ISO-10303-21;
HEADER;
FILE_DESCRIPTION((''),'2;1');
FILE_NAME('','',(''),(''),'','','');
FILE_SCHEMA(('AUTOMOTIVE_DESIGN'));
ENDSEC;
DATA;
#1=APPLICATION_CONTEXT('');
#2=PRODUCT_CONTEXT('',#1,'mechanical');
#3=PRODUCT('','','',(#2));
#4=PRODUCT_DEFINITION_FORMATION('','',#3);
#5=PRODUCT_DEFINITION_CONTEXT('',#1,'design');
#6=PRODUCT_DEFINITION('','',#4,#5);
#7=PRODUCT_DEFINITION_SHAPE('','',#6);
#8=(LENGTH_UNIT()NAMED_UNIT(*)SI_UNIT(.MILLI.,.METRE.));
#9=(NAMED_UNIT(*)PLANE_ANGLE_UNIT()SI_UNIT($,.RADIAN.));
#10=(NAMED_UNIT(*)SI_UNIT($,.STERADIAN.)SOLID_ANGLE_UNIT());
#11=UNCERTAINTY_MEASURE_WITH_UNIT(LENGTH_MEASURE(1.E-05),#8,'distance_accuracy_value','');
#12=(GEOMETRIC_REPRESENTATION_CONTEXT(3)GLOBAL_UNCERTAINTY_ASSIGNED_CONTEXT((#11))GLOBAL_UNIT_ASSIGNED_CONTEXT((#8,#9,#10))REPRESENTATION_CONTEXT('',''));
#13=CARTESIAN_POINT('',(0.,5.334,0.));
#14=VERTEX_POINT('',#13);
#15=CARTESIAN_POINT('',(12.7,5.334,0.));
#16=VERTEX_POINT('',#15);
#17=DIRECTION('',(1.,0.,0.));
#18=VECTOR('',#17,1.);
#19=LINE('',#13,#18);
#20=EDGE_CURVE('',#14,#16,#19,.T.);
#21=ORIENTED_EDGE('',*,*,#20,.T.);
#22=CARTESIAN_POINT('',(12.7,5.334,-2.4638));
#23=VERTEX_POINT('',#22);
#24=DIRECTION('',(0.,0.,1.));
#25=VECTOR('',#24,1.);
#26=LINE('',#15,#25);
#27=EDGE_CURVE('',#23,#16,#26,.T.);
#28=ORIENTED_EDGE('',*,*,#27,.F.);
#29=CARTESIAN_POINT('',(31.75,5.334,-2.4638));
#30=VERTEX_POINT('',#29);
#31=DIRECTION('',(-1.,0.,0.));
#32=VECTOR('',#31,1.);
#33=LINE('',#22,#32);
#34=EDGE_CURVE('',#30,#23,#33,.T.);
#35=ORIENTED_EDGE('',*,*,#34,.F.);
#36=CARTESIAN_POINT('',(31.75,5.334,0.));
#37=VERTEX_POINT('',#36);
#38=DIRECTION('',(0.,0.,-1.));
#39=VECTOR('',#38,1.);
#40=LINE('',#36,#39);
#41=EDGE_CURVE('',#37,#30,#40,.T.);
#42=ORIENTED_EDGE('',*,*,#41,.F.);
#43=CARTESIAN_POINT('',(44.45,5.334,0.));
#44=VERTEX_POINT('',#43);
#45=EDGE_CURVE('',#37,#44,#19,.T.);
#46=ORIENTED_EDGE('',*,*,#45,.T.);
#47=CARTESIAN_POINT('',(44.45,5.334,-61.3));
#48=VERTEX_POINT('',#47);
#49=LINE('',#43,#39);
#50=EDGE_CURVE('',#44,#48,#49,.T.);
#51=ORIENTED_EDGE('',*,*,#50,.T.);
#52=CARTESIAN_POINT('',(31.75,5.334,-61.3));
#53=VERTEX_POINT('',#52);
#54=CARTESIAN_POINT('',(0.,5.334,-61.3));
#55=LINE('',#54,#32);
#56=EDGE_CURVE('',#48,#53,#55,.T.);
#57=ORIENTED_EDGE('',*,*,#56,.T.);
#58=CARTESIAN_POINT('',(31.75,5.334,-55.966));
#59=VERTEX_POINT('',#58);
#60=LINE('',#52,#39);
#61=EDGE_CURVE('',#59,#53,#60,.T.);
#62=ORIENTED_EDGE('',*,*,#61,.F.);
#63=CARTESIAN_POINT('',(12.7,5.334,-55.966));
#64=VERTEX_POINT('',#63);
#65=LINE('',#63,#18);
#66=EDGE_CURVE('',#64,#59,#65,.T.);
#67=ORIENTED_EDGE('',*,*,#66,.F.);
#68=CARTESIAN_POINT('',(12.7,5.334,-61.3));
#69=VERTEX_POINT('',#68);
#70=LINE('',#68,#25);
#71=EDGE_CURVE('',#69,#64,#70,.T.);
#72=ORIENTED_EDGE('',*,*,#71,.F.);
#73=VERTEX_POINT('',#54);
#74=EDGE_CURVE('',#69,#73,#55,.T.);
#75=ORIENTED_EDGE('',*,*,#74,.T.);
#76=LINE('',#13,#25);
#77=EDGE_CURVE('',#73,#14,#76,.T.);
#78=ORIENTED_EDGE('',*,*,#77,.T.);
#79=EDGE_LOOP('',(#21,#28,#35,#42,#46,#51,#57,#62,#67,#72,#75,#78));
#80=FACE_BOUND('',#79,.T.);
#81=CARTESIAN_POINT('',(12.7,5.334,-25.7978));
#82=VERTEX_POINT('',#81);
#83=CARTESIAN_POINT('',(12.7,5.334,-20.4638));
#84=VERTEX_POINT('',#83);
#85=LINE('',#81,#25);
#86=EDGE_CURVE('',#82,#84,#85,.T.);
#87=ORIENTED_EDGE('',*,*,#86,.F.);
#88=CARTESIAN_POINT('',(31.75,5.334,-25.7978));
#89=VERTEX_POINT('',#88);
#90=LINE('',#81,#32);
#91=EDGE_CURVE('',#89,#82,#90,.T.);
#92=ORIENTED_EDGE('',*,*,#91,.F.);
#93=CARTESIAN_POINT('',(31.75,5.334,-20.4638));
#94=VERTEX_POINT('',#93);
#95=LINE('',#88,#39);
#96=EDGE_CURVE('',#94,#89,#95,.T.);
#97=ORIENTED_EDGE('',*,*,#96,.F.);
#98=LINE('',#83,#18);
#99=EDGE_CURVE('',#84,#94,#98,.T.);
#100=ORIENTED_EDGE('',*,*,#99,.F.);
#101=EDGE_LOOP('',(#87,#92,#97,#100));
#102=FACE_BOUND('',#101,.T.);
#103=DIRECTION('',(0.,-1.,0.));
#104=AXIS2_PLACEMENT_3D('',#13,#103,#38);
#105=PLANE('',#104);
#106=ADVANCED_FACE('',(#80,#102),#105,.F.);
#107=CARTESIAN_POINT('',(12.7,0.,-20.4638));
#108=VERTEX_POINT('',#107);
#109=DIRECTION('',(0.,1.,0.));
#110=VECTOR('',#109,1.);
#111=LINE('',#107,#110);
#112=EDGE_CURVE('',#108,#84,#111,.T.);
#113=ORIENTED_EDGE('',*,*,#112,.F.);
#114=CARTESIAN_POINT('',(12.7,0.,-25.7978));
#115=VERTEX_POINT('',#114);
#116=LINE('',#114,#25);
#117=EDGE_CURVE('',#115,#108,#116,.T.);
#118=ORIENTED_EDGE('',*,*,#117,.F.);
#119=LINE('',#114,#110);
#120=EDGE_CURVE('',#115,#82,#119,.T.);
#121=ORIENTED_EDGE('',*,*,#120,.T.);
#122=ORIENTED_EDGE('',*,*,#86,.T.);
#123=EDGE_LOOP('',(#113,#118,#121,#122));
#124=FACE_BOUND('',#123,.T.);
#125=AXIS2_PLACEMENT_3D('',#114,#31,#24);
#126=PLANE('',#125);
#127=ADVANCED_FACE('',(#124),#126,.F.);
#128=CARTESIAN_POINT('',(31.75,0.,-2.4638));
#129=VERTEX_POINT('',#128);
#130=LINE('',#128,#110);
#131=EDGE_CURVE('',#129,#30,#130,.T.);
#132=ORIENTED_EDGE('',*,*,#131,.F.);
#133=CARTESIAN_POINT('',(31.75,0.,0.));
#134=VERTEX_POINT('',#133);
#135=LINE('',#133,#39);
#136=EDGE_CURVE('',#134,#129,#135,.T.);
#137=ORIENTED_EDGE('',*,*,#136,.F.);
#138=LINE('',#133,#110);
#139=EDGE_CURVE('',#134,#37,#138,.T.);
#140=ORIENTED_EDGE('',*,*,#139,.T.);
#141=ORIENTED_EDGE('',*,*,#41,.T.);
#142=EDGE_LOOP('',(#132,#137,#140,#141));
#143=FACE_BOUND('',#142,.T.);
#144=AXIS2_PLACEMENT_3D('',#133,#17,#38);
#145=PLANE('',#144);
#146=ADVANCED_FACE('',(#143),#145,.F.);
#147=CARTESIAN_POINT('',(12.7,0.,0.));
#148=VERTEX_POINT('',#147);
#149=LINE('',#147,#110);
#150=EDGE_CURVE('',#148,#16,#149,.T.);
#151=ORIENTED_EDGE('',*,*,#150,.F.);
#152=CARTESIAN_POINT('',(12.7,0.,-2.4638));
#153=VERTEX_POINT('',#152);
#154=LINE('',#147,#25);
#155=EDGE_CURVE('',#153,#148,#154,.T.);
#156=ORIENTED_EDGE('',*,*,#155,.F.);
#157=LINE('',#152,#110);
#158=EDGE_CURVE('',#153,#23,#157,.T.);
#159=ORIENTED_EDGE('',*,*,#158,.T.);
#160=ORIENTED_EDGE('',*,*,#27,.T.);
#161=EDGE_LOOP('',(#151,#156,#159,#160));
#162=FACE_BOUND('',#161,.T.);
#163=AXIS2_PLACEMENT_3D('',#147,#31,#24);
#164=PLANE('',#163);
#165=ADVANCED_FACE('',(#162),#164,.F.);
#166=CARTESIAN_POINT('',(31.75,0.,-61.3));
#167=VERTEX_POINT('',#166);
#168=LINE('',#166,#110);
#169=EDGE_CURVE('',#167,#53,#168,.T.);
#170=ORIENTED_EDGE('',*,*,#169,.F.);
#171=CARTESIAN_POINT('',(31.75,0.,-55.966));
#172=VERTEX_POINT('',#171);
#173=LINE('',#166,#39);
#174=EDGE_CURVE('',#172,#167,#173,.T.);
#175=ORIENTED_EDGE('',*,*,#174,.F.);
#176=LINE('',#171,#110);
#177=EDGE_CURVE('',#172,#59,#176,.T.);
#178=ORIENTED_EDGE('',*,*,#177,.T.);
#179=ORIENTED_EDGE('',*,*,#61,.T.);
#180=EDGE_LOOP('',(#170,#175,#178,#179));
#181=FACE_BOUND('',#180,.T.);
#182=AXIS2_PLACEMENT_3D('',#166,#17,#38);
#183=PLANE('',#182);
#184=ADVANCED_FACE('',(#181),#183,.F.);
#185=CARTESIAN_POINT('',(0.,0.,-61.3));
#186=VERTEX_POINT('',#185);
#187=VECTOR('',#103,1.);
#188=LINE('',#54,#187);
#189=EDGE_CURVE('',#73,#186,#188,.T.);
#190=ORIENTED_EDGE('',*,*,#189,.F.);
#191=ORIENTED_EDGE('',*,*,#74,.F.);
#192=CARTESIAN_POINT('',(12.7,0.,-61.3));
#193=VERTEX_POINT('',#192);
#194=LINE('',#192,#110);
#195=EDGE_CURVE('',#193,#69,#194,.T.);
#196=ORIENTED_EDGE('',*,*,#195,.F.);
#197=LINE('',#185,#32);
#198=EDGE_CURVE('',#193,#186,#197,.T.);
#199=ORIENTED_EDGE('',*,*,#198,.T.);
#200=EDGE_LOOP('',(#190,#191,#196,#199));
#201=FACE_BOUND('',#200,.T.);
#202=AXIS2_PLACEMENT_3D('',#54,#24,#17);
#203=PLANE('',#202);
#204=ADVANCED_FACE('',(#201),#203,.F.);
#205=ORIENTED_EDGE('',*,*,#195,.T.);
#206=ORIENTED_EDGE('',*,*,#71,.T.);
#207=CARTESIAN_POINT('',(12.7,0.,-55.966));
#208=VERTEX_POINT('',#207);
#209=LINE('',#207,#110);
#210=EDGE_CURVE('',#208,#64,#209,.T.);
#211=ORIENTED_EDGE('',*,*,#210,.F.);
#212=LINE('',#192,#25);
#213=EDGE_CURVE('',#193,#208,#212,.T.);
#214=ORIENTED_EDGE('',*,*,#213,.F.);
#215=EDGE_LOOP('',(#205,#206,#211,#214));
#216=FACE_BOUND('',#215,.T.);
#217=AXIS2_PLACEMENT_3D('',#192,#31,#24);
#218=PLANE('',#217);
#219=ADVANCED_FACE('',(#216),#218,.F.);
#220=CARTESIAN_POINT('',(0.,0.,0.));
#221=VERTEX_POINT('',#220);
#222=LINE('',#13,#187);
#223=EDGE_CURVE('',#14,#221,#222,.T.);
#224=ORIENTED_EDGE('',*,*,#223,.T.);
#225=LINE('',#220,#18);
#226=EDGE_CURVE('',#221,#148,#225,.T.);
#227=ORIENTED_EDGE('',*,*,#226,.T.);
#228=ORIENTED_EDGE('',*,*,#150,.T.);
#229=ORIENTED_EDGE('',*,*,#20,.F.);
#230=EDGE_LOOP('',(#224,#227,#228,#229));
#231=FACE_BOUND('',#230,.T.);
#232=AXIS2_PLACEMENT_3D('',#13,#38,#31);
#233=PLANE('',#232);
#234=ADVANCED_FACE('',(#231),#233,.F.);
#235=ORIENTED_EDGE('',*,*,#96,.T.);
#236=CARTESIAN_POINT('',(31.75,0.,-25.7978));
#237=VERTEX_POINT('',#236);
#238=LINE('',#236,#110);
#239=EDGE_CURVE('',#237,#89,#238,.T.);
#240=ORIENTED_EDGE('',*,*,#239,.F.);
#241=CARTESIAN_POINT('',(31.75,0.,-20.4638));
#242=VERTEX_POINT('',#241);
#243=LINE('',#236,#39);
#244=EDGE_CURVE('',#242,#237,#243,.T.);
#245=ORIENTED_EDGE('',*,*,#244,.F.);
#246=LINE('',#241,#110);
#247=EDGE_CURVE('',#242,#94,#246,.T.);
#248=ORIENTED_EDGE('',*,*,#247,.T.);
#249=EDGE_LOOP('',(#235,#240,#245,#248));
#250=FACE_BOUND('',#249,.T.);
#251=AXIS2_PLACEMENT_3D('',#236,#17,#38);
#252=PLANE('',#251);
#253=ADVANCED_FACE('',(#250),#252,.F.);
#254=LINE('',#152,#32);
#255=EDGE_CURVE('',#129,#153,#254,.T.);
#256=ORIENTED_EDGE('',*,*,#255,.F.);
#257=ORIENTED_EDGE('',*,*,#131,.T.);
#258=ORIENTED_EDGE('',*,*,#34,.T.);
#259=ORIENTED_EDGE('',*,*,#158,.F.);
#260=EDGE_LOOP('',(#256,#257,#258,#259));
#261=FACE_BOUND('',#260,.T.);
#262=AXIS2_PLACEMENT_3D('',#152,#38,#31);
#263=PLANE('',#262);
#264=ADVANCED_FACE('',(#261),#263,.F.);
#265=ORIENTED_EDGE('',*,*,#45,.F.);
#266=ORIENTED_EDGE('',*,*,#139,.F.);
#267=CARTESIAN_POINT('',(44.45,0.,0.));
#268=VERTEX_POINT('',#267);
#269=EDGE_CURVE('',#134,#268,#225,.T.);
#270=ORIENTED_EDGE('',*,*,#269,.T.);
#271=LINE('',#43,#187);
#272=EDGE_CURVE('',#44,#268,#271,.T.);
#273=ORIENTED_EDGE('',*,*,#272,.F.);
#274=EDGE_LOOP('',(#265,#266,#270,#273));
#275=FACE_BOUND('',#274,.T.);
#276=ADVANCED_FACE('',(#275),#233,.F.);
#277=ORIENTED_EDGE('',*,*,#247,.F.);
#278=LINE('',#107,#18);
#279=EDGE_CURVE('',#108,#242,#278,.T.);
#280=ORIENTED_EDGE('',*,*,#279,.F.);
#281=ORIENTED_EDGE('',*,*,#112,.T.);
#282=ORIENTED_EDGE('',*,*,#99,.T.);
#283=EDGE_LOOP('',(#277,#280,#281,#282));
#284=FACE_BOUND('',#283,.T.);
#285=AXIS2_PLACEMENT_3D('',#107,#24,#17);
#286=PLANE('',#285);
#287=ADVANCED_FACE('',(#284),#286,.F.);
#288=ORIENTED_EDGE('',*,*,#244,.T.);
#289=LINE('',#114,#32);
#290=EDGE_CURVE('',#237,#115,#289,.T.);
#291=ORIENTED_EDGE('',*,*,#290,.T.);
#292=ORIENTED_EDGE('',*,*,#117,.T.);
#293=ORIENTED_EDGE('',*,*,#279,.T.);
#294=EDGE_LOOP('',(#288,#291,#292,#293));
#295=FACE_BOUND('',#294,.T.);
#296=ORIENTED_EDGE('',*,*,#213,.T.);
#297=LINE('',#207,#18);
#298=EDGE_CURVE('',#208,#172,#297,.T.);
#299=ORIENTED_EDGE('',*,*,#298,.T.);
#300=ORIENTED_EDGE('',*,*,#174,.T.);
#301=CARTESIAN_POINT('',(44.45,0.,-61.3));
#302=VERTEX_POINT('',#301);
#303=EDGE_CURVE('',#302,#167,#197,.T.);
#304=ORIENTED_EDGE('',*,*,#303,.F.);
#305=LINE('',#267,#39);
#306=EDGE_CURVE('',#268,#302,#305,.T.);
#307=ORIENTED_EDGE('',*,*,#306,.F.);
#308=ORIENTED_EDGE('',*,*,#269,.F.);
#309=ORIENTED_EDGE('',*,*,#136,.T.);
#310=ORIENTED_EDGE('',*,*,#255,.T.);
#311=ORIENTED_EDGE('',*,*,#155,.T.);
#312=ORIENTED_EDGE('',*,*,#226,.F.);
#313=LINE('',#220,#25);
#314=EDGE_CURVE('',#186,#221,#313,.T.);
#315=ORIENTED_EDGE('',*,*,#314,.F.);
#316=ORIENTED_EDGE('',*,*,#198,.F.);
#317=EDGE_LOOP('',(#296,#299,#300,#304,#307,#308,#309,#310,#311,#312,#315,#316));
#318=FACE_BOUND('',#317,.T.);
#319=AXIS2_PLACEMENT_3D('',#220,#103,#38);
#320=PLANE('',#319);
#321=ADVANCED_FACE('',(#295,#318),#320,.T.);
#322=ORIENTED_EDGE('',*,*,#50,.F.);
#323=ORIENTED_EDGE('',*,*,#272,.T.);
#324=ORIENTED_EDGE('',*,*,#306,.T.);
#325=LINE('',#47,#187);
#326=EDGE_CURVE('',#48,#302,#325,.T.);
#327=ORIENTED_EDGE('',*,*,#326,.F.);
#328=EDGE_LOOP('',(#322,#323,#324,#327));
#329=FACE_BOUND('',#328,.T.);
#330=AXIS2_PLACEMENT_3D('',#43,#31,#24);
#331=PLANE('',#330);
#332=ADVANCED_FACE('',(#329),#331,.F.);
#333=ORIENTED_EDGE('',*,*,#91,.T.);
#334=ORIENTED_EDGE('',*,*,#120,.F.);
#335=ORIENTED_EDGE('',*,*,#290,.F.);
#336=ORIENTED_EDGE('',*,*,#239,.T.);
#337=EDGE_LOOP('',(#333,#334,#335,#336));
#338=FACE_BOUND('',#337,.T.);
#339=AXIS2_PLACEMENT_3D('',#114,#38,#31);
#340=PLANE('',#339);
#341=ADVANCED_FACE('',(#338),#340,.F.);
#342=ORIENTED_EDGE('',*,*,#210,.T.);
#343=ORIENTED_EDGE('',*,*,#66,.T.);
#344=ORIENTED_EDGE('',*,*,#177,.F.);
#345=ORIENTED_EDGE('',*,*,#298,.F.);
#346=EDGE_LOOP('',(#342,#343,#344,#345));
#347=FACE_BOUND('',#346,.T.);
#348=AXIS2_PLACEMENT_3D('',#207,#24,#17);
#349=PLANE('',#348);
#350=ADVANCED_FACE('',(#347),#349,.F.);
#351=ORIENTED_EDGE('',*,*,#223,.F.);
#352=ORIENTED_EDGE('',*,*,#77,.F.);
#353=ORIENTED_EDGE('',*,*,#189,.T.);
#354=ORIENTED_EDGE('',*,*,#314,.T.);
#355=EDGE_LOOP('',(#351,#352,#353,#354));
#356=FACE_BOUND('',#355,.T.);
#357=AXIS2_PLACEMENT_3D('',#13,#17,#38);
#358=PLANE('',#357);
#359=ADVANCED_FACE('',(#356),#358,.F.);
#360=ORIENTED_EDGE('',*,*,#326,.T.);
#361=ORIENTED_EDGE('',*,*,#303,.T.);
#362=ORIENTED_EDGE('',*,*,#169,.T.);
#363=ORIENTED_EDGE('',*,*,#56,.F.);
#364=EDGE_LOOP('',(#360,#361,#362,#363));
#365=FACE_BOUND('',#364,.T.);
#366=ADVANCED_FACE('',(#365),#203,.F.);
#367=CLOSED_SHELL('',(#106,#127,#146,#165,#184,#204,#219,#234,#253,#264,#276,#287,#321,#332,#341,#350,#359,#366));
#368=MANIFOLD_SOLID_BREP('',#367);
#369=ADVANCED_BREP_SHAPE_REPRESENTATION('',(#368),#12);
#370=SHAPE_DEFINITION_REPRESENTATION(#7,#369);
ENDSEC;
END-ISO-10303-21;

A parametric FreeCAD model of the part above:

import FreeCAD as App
import Part
import Sketcher
Q = App.Units.Quantity

doc = App.newDocument("Part")
body = doc.addObject("PartDesign::Body", "Body")

# Sketch on XZ plane
sketch1 = body.newObject("Sketcher::SketchObject", "Sketch")
sketch1.AttachmentSupport = (doc.getObject("XZ_Plane"), [""])
sketch1.MapMode = "FlatFace"
sketch1.addGeometry(Part.LineSegment(App.Vector(0, -61, 0), App.Vector(0, 0, 0)), False)
sketch1.addGeometry(Part.LineSegment(App.Vector(0, 0, 0), App.Vector(44, 0, 0)), False)
sketch1.addGeometry(Part.LineSegment(App.Vector(44, 0, 0), App.Vector(44, -61, 0)), False)
sketch1.addGeometry(Part.LineSegment(App.Vector(44, -61, 0), App.Vector(0, -61, 0)), False)
sketch1.addConstraint(Sketcher.Constraint("Coincident", 0, 2, 1, 1))
sketch1.addConstraint(Sketcher.Constraint("Coincident", 1, 2, 2, 1))
sketch1.addConstraint(Sketcher.Constraint("Coincident", 2, 2, 3, 1))
sketch1.addConstraint(Sketcher.Constraint("Coincident", 3, 2, 0, 1))
sketch1.addConstraint(Sketcher.Constraint("Vertical", 0))
sketch1.addConstraint(Sketcher.Constraint("Horizontal", 1))
sketch1.addConstraint(Sketcher.Constraint("Vertical", 2))
sketch1.addConstraint(Sketcher.Constraint("Horizontal", 3))
sketch1.addConstraint(Sketcher.Constraint("Coincident", 0, 2, -1, 1))
sketch1.addConstraint(Sketcher.Constraint("DistanceX", 1, 1, 1, 2, Q("1.75 in")))
sketch1.addConstraint(Sketcher.Constraint("DistanceY", 0, 1, 0, 2, Q("61.3 mm")))
pad1 = body.newObject("PartDesign::Pad", "Pad")
pad1.Profile = sketch1
pad1.Length = Q("0.21 in")
pad1.Reversed = True

# Sketch on XZ plane
sketch2 = body.newObject("Sketcher::SketchObject", "Sketch001")
sketch2.AttachmentSupport = (doc.getObject("XZ_Plane"), [""])
sketch2.MapMode = "FlatFace"
sketch2.AttachmentOffset = App.Placement(App.Vector(0, 0, -0.21 * 25.4), App.Rotation())
sketch2.addGeometry(Part.LineSegment(App.Vector(12.7, -2.5, 0), App.Vector(12.7, 0, 0)), False)
sketch2.addGeometry(Part.LineSegment(App.Vector(12.7, 0, 0), App.Vector(31.8, 0, 0)), False)
sketch2.addGeometry(Part.LineSegment(App.Vector(31.8, 0, 0), App.Vector(31.8, -2.5, 0)), False)
sketch2.addGeometry(Part.LineSegment(App.Vector(31.8, -2.5, 0), App.Vector(12.7, -2.5, 0)), False)
sketch2.addGeometry(Part.LineSegment(App.Vector(12.7, -25.8, 0), App.Vector(12.7, -20.5, 0)), False)
sketch2.addGeometry(Part.LineSegment(App.Vector(12.7, -20.5, 0), App.Vector(31.8, -20.5, 0)), False)
sketch2.addGeometry(Part.LineSegment(App.Vector(31.8, -20.5, 0), App.Vector(31.8, -25.8, 0)), False)
sketch2.addGeometry(Part.LineSegment(App.Vector(31.8, -25.8, 0), App.Vector(12.7, -25.8, 0)), False)
sketch2.addGeometry(Part.LineSegment(App.Vector(12.7, -61.3, 0), App.Vector(12.7, -56, 0)), False)
sketch2.addGeometry(Part.LineSegment(App.Vector(12.7, -56, 0), App.Vector(31.8, -56, 0)), False)
sketch2.addGeometry(Part.LineSegment(App.Vector(31.8, -56, 0), App.Vector(31.8, -61.3, 0)), False)
sketch2.addGeometry(Part.LineSegment(App.Vector(31.8, -61.3, 0), App.Vector(12.7, -61.3, 0)), False)
sketch2.addConstraint(Sketcher.Constraint("Coincident", 0, 2, 1, 1))
sketch2.addConstraint(Sketcher.Constraint("Coincident", 1, 2, 2, 1))
sketch2.addConstraint(Sketcher.Constraint("Coincident", 2, 2, 3, 1))
sketch2.addConstraint(Sketcher.Constraint("Coincident", 3, 2, 0, 1))
sketch2.addConstraint(Sketcher.Constraint("Coincident", 4, 2, 5, 1))
sketch2.addConstraint(Sketcher.Constraint("Coincident", 5, 2, 6, 1))
sketch2.addConstraint(Sketcher.Constraint("Coincident", 6, 2, 7, 1))
sketch2.addConstraint(Sketcher.Constraint("Coincident", 7, 2, 4, 1))
sketch2.addConstraint(Sketcher.Constraint("Coincident", 8, 2, 9, 1))
sketch2.addConstraint(Sketcher.Constraint("Coincident", 9, 2, 10, 1))
sketch2.addConstraint(Sketcher.Constraint("Coincident", 10, 2, 11, 1))
sketch2.addConstraint(Sketcher.Constraint("Coincident", 11, 2, 8, 1))
sketch2.addConstraint(Sketcher.Constraint("Vertical", 0))
sketch2.addConstraint(Sketcher.Constraint("Horizontal", 1))
sketch2.addConstraint(Sketcher.Constraint("Vertical", 2))
sketch2.addConstraint(Sketcher.Constraint("Horizontal", 3))
sketch2.addConstraint(Sketcher.Constraint("Vertical", 4))
sketch2.addConstraint(Sketcher.Constraint("Horizontal", 5))
sketch2.addConstraint(Sketcher.Constraint("Vertical", 6))
sketch2.addConstraint(Sketcher.Constraint("Horizontal", 7))
sketch2.addConstraint(Sketcher.Constraint("Vertical", 8))
sketch2.addConstraint(Sketcher.Constraint("Horizontal", 9))
sketch2.addConstraint(Sketcher.Constraint("Vertical", 10))
sketch2.addConstraint(Sketcher.Constraint("Horizontal", 11))
sketch2.addConstraint(Sketcher.Constraint("PointOnObject", 0, 2, -1))
sketch2.addConstraint(Sketcher.Constraint("Vertical", 3, 2, 4, 2))
sketch2.addConstraint(Sketcher.Constraint("Vertical", 2, 2, 5, 2))
sketch2.addConstraint(Sketcher.Constraint("Vertical", 7, 2, 8, 2))
sketch2.addConstraint(Sketcher.Constraint("Vertical", 6, 2, 9, 2))
sketch2.addConstraint(Sketcher.Constraint("Equal", 6, 8))
sketch2.addConstraint(Sketcher.Constraint("DistanceX", 1, 1, 1, 2, Q("0.75 in")))
sketch2.addConstraint(Sketcher.Constraint("DistanceY", 4, 1, 4, 2, Q("0.21 in")))
sketch2.addConstraint(Sketcher.Constraint("DistanceX", -1, 1, 0, 2, Q("0.5 in")))
sketch2.addConstraint(Sketcher.Constraint("DistanceY", 0, 1, 0, 2, Q("0.097 in")))
sketch2.addConstraint(Sketcher.Constraint("DistanceY", 4, 2, -1, 1, Q("20.4638 mm")))
sketch2.addConstraint(Sketcher.Constraint("DistanceY", 8, 2, -1, 1, Q("55.966 mm")))
pocket1 = body.newObject("PartDesign::Pocket", "Pocket")
pocket1.Profile = sketch2
pocket1.Type = "ThroughAll"
pocket1.Reversed = True

doc.recompute()
